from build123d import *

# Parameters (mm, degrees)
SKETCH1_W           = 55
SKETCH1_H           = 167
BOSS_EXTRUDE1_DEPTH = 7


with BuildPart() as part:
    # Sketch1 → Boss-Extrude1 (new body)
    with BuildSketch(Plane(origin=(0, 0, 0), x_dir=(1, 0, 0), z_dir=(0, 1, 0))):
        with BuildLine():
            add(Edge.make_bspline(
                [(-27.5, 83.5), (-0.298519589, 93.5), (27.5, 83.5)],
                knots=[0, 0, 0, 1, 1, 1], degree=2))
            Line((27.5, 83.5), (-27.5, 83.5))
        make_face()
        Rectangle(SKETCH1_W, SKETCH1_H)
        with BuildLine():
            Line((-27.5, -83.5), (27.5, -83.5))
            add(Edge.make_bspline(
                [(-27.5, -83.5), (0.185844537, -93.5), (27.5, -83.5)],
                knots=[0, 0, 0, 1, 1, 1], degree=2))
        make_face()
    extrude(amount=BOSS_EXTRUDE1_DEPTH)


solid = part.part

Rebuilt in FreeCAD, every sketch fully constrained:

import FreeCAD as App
import Part
import Sketcher

V = App.Vector

doc = App.newDocument("Part")
body = doc.addObject("PartDesign::Body", "Body")

# Sketch on XZ plane
sketch1 = body.newObject("Sketcher::SketchObject", "Sketch")
sketch1.AttachmentSupport = (doc.getObject("XZ_Plane"), [""])
sketch1.MapMode = "FlatFace"
sketch1.addGeometry([
    Part.BSplineCurve([V(-27.5, -83.5, 0), V(-0.29852, -93.5, 0), V(27.5, -83.5, 0)], [3, 3], [0, 1], False, 2, [1, 1, 1], False),
    Part.LineSegment(V(-27.5, -83.5, 0), V(-27.5, 83.5, 0)),
    Part.BSplineCurve([V(-27.5, 83.5, 0), V(0.185845, 93.5, 0), V(27.5, 83.5, 0)], [3, 3], [0, 1], False, 2, [1, 1, 1], False),
    Part.LineSegment(V(27.5, 83.5, 0), V(27.5, -83.5, 0)),
], False)
sketch1.addConstraint([
    Sketcher.Constraint("Block", 0),
    Sketcher.Constraint("Block", 2),
    Sketcher.Constraint("Coincident", 0, 1, 1, 1),
    Sketcher.Constraint("Coincident", 1, 2, 2, 1),
    Sketcher.Constraint("Coincident", 2, 2, 3, 1),
    Sketcher.Constraint("Coincident", 3, 2, 0, 2),
])
pad1 = body.newObject("PartDesign::Pad", "Pad")
pad1.Profile = sketch1
pad1.Length = 7
pad1.Reversed = True

doc.recompute()
